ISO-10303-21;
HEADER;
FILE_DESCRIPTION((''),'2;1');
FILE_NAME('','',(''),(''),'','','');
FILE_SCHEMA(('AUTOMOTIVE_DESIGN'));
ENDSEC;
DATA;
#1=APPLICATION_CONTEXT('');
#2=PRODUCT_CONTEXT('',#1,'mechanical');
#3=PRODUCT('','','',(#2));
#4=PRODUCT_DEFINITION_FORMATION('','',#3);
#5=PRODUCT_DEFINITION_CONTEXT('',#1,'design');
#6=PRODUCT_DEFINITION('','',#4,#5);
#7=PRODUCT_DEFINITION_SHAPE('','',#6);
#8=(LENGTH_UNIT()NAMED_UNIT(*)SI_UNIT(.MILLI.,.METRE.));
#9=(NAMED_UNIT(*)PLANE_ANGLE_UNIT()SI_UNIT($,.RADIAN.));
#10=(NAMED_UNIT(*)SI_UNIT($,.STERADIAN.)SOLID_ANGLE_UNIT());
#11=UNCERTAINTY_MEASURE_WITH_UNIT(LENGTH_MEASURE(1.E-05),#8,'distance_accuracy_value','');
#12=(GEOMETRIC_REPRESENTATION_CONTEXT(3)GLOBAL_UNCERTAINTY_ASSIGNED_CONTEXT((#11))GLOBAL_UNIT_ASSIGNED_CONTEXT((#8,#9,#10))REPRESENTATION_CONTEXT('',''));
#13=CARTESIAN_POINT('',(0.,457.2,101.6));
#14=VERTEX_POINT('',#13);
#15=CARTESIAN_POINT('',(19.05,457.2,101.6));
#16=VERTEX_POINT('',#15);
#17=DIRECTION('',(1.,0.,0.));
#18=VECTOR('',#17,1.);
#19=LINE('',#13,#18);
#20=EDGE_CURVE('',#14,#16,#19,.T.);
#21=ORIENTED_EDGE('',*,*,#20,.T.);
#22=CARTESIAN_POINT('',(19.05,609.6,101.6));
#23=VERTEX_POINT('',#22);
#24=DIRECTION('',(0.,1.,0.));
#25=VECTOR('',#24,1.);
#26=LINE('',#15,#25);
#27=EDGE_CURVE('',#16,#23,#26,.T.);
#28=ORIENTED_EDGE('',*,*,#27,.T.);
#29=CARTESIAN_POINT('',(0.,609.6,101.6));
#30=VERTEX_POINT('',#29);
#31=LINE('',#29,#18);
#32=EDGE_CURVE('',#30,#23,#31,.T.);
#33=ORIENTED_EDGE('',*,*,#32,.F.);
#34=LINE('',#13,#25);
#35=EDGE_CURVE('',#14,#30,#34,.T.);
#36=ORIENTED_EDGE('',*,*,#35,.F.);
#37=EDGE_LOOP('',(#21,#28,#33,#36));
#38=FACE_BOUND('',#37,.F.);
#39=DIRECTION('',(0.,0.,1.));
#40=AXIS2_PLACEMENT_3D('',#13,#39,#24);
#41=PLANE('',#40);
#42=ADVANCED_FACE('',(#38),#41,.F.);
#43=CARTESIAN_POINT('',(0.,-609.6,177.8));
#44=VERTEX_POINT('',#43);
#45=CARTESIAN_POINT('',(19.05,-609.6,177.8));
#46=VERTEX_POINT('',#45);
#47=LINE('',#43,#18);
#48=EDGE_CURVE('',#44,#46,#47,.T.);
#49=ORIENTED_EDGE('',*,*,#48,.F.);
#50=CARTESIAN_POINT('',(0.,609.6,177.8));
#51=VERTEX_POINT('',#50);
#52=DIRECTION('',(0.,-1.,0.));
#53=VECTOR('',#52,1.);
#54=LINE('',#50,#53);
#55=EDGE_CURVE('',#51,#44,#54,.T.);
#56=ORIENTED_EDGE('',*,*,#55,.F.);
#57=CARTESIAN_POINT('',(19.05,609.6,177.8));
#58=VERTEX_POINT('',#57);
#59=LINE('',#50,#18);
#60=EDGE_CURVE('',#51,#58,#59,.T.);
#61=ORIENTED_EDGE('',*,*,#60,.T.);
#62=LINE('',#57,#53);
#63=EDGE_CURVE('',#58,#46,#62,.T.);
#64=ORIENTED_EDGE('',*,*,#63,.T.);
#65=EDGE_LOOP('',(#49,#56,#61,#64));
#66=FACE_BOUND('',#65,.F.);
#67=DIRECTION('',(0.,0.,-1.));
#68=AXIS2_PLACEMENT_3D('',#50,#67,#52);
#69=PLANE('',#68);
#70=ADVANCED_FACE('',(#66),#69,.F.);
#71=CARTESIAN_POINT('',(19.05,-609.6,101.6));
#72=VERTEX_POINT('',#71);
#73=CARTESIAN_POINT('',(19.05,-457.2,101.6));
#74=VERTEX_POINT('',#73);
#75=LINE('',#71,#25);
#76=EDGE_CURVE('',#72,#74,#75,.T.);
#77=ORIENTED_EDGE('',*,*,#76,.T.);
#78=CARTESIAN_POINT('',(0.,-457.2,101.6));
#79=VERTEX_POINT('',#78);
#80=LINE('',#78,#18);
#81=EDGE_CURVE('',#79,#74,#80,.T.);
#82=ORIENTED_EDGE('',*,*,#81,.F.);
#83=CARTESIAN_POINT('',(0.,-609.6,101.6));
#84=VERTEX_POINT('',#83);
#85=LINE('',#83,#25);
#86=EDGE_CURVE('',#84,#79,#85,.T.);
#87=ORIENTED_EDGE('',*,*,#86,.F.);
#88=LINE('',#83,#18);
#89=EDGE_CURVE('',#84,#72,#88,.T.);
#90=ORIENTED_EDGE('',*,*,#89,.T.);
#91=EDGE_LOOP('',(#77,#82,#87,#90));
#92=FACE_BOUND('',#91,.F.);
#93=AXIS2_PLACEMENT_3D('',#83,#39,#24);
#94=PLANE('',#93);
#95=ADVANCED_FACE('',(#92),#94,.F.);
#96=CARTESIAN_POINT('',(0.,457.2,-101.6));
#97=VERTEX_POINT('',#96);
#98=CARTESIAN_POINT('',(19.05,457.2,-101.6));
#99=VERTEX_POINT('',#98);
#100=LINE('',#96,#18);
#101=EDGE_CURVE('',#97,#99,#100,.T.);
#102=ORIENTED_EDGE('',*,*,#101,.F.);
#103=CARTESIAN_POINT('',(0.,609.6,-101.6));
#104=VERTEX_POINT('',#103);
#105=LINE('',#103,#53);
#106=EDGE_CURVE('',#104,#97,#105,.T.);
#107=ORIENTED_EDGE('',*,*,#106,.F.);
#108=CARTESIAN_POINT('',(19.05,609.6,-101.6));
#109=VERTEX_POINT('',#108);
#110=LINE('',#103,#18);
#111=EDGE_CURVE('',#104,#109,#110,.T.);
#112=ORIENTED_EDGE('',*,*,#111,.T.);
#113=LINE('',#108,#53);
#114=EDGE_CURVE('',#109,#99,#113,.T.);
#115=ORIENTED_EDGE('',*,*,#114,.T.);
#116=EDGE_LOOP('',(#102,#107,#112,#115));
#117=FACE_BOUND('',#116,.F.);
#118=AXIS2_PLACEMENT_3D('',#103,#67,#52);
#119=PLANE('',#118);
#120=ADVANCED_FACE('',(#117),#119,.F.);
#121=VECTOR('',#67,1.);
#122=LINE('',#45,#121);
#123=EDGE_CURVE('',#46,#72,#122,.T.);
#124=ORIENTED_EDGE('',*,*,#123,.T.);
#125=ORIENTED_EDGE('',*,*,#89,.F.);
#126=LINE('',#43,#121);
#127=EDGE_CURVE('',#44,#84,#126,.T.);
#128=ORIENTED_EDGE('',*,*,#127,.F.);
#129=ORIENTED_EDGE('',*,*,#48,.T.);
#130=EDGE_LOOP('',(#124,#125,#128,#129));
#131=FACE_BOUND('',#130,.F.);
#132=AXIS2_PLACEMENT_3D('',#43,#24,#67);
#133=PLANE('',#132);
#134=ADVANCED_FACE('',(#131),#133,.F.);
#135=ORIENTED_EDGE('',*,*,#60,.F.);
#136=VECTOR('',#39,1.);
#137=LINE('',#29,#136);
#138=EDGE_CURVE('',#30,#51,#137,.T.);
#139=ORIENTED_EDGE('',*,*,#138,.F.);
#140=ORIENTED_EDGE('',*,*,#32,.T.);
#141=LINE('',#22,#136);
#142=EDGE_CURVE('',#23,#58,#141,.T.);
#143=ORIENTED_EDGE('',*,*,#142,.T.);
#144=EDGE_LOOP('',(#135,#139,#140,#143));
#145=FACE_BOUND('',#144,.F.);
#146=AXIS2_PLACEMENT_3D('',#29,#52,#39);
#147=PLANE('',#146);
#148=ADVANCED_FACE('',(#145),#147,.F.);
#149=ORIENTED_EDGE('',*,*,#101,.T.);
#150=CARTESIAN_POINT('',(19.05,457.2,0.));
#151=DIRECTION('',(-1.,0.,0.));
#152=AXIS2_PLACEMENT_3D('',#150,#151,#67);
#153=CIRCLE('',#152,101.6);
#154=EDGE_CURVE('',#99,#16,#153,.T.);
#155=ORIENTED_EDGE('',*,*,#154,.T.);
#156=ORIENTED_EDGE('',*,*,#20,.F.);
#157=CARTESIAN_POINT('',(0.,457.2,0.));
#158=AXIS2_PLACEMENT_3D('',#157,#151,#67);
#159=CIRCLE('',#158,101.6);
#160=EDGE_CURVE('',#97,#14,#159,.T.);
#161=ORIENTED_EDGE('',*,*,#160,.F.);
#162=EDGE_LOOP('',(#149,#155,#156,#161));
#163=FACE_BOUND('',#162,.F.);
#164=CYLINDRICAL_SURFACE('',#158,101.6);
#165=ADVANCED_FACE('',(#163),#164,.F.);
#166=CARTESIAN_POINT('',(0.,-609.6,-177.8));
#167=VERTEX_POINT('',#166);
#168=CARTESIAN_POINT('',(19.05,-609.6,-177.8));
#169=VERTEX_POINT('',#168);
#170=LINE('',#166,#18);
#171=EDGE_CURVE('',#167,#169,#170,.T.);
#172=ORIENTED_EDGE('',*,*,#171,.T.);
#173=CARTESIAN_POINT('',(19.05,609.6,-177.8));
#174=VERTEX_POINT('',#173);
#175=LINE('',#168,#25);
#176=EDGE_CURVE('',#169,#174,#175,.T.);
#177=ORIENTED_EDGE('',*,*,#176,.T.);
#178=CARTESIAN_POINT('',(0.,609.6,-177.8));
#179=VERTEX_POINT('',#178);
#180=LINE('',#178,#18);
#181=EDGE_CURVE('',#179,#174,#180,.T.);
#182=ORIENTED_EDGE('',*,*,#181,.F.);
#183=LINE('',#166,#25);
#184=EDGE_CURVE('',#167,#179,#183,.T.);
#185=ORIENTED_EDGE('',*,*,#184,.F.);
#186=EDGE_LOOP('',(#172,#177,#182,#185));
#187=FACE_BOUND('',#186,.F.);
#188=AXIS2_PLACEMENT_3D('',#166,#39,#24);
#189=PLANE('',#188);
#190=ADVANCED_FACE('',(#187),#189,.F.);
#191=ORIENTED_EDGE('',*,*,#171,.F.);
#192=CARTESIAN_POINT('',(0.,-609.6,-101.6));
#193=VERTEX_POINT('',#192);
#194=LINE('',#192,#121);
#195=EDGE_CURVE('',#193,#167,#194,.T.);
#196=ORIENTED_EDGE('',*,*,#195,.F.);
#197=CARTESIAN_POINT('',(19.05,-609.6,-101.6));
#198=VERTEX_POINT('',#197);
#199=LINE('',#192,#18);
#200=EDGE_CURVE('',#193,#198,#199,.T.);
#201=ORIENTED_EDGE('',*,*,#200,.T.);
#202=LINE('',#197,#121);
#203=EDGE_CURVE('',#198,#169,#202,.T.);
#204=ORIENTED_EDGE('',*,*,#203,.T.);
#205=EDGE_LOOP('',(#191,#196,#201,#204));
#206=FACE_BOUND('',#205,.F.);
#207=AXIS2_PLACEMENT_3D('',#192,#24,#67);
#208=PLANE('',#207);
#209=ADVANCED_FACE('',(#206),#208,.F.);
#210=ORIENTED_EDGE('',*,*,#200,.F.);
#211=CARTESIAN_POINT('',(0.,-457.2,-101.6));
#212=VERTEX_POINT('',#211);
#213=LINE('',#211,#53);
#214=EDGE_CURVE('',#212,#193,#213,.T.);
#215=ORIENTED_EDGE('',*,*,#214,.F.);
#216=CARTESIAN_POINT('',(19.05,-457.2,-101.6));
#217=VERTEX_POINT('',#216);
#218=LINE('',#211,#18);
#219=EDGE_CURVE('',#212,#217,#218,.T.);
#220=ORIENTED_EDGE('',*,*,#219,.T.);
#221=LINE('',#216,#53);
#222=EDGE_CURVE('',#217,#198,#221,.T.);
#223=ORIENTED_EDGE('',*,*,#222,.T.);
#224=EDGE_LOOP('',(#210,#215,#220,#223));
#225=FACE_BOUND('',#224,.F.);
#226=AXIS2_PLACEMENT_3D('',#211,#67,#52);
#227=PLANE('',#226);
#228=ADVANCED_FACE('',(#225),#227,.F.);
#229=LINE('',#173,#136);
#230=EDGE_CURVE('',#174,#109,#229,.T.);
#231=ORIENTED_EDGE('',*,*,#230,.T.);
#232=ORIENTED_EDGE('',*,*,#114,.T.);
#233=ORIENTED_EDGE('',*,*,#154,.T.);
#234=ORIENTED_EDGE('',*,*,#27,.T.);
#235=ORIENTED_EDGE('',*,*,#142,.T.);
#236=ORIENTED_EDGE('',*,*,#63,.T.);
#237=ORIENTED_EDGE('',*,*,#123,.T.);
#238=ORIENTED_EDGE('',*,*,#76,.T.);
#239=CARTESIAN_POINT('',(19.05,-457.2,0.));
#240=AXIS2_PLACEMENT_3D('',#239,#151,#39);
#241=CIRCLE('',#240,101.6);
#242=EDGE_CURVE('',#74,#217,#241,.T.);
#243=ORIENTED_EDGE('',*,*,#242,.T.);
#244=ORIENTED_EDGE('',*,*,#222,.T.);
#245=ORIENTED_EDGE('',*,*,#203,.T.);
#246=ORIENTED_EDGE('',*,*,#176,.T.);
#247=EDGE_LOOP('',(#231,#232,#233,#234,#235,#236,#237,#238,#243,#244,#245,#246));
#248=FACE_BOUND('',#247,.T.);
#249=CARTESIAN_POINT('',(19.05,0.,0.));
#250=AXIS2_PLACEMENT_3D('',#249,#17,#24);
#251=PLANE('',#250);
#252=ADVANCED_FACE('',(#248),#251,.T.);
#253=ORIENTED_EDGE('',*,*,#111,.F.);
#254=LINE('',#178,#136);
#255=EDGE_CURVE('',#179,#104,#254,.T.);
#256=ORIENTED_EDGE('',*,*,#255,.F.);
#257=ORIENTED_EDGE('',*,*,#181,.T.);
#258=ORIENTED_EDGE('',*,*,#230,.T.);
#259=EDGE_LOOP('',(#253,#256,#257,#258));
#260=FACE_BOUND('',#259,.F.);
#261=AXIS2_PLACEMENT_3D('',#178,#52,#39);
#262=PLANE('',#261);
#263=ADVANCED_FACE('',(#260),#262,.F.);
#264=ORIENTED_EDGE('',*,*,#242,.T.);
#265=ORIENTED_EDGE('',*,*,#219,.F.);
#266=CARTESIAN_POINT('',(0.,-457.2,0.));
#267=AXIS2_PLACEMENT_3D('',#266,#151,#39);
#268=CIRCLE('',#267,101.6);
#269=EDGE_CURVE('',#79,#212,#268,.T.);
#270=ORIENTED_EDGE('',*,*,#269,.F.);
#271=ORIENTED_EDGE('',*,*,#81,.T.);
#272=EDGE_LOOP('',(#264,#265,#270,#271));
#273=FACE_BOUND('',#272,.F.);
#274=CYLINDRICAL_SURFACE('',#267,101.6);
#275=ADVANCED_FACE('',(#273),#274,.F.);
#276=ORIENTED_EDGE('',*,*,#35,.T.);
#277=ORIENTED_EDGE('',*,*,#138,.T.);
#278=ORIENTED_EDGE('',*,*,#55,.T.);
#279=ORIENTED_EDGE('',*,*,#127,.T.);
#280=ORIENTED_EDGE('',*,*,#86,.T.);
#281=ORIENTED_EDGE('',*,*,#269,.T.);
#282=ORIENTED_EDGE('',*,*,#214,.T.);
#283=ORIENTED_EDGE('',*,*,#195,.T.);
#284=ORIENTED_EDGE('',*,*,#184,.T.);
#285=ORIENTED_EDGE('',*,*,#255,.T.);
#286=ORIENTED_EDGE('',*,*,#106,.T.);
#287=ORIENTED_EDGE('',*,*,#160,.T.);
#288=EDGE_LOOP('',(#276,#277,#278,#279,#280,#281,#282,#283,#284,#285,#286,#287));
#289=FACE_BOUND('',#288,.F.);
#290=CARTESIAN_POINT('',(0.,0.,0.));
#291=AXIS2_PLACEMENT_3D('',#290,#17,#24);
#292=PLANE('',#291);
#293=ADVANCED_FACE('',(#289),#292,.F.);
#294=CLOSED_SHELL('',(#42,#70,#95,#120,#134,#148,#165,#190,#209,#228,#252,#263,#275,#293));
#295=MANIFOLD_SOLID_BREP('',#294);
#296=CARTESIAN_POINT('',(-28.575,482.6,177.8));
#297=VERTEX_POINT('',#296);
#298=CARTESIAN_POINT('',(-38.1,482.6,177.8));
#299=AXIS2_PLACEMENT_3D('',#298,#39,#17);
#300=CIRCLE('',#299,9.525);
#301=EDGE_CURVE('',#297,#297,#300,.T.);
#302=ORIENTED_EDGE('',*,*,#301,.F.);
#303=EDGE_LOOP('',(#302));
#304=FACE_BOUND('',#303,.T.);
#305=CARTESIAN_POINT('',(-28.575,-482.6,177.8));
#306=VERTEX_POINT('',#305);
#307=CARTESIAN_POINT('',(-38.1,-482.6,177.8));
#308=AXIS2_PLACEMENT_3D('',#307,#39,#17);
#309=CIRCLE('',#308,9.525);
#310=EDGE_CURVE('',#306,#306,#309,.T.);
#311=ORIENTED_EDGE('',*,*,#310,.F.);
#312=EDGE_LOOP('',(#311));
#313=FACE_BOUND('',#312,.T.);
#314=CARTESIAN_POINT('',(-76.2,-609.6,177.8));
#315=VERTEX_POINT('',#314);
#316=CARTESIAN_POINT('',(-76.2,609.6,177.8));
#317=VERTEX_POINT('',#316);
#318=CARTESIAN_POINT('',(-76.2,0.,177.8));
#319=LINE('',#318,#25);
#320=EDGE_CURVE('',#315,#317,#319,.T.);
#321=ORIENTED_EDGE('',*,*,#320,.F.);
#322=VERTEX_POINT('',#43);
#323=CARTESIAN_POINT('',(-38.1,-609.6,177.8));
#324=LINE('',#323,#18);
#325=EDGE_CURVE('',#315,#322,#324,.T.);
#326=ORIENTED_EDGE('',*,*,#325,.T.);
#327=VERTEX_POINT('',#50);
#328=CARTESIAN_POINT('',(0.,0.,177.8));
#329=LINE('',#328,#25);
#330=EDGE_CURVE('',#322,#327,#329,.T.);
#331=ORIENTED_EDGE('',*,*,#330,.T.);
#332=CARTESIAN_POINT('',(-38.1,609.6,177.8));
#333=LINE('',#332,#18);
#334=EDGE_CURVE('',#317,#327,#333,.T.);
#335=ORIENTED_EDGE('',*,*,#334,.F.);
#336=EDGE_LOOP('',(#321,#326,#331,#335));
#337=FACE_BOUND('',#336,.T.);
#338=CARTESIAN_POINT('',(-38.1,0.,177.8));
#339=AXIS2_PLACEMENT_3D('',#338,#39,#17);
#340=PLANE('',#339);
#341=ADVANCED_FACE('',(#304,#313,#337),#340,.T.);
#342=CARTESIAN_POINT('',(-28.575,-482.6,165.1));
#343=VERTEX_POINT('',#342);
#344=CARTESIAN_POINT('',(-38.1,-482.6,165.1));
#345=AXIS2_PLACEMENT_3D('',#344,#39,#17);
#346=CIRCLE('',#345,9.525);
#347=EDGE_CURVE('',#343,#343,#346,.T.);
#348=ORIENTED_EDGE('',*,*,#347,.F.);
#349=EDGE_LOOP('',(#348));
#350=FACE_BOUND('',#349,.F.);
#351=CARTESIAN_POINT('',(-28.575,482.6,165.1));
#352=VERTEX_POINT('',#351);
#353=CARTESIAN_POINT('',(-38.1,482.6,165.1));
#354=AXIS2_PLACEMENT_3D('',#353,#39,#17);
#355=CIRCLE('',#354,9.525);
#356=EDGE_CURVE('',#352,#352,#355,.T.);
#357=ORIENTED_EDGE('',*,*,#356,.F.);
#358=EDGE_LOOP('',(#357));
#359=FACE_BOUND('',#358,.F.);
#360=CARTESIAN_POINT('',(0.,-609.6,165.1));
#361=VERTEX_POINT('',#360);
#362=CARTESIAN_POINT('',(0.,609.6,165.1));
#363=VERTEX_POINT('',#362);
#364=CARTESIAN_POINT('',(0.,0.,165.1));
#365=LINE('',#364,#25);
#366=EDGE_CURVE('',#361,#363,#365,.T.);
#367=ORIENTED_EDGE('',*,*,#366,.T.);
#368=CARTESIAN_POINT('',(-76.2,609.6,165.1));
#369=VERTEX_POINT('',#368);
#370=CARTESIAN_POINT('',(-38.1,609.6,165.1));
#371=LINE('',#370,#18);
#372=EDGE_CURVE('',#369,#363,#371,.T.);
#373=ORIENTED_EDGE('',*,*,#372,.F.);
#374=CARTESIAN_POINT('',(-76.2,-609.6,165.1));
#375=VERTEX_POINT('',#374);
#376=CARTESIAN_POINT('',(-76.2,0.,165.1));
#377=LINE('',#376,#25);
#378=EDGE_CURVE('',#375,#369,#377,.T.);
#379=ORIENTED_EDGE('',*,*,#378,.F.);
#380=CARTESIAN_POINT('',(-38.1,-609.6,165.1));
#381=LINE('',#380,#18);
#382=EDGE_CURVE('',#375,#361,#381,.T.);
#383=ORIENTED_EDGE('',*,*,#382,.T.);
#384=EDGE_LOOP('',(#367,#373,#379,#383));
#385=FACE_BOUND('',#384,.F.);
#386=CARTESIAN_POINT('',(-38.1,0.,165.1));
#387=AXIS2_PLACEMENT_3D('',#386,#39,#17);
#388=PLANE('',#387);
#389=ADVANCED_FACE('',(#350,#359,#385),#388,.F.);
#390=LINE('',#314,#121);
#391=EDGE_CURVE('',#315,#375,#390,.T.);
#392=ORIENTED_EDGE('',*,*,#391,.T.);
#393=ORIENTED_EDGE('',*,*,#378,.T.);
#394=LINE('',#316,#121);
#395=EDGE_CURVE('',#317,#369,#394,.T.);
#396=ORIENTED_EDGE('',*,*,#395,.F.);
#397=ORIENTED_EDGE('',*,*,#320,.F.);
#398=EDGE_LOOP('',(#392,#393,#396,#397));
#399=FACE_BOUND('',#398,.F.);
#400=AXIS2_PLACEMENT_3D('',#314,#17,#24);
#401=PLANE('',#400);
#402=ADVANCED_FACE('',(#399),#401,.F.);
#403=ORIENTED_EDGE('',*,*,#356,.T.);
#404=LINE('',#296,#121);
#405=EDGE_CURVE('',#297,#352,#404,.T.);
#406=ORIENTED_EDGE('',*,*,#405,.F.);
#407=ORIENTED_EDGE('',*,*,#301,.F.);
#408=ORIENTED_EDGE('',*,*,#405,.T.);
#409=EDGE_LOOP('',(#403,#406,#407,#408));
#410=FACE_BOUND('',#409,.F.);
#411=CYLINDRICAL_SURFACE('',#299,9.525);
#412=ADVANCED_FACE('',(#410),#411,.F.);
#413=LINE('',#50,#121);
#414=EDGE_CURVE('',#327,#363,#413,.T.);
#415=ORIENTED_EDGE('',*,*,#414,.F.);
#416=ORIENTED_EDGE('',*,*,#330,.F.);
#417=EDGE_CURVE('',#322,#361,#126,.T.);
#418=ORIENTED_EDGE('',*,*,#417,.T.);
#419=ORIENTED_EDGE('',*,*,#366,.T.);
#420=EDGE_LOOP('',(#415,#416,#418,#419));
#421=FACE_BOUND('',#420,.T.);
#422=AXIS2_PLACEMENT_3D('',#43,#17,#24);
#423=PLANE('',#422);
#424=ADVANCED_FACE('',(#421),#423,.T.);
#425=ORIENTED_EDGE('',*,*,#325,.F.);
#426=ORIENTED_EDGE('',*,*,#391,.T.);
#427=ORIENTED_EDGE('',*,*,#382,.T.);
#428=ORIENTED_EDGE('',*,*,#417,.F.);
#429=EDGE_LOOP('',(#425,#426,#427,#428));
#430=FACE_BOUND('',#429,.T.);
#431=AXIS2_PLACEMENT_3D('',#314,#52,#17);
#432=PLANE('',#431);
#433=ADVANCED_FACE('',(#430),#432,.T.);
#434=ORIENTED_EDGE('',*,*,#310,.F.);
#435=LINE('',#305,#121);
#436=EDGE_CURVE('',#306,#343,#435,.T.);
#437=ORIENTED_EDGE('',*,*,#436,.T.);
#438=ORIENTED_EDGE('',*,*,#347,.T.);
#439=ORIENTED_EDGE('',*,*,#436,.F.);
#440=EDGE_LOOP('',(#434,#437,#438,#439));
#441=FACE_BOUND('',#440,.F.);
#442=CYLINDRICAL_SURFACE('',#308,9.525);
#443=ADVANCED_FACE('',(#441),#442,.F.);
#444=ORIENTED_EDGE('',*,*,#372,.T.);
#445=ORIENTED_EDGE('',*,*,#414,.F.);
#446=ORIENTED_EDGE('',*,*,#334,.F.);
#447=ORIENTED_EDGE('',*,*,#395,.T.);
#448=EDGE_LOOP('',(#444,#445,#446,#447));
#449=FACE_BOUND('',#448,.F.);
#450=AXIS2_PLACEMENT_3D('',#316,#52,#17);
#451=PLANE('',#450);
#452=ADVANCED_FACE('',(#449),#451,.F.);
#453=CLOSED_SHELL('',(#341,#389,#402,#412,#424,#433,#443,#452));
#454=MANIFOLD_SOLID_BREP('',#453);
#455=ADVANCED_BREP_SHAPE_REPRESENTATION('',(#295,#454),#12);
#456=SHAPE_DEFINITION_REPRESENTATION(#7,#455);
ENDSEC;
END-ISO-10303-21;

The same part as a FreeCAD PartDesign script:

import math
import FreeCAD as App
import Part
import Sketcher
Q = App.Units.Quantity

doc = App.newDocument("Part")
body = doc.addObject("PartDesign::Body", "Body")

sketch1 = body.newObject("Sketcher::SketchObject", "Sketch")
sketch1.AttachmentSupport = (doc.getObject("YZ_Plane"), [""])
sketch1.MapMode = "FlatFace"
sketch1.addGeometry([
    Part.LineSegment(App.Vector(609.6, 177.8, 0), App.Vector(-609.6, 177.8, 0)),
    Part.LineSegment(App.Vector(-609.6, 177.8, 0), App.Vector(-609.6, 101.6, 0)),
    Part.LineSegment(App.Vector(-609.6, 101.6, 0), App.Vector(-457.2, 101.6, 0)),
    Part.ArcOfCircle(Part.Circle(App.Vector(-457.2, 0, 0), App.Vector(0, 0, 1), 101.6), math.radians(-90), math.radians(90)),
    Part.LineSegment(App.Vector(-457.2, -101.6, 0), App.Vector(-609.6, -101.6, 0)),
    Part.LineSegment(App.Vector(-609.6, -101.6, 0), App.Vector(-609.6, -177.8, 0)),
    Part.LineSegment(App.Vector(-609.6, -177.8, 0), App.Vector(609.6, -177.8, 0)),
    Part.LineSegment(App.Vector(609.6, -177.8, 0), App.Vector(609.6, -101.6, 0)),
    Part.LineSegment(App.Vector(609.6, -101.6, 0), App.Vector(457.2, -101.6, 0)),
    Part.ArcOfCircle(Part.Circle(App.Vector(457.2, 0, 0), App.Vector(0, 0, 1), 101.6), math.radians(90), math.radians(270)),
    Part.LineSegment(App.Vector(457.2, 101.6, 0), App.Vector(609.6, 101.6, 0)),
    Part.LineSegment(App.Vector(609.6, 101.6, 0), App.Vector(609.6, 177.8, 0)),
], False)
sketch1.addConstraint([
    Sketcher.Constraint("Coincident", 0, 2, 1, 1),
    Sketcher.Constraint("Coincident", 1, 2, 2, 1),
    Sketcher.Constraint("Tangent", 2, 2, 3, 2),
    Sketcher.Constraint("Tangent", 3, 1, 4, 1),
    Sketcher.Constraint("Coincident", 4, 2, 5, 1),
    Sketcher.Constraint("Coincident", 5, 2, 6, 1),
    Sketcher.Constraint("Coincident", 6, 2, 7, 1),
    Sketcher.Constraint("Coincident", 7, 2, 8, 1),
    Sketcher.Constraint("Tangent", 8, 2, 9, 2),
    Sketcher.Constraint("Tangent", 9, 1, 10, 1),
    Sketcher.Constraint("Coincident", 10, 2, 11, 1),
    Sketcher.Constraint("Coincident", 11, 2, 0, 1),
    Sketcher.Constraint("Horizontal", 0),
    Sketcher.Constraint("Vertical", 1),
    Sketcher.Constraint("Horizontal", 2),
    Sketcher.Constraint("Horizontal", 4),
    Sketcher.Constraint("Vertical", 5),
    Sketcher.Constraint("Horizontal", 6),
    Sketcher.Constraint("Vertical", 7),
    Sketcher.Constraint("Horizontal", 8),
    Sketcher.Constraint("Horizontal", 10),
    Sketcher.Constraint("Vertical", 11),
    Sketcher.Constraint("Equal", 3, 9),
    Sketcher.Constraint("Symmetric", 3, 3, 9, 3, -1, 1),
    Sketcher.Constraint("Symmetric", 0, 2, 6, 2, -1, 1),
    Sketcher.Constraint("Symmetric", 4, 2, 7, 2, -2),
    Sketcher.Constraint("Vertical", 7, 2, 10, 2),
    Sketcher.Constraint("Radius", 3, Q("4 in")),
    Sketcher.Constraint("DistanceX", 0, 2, 0, 1, Q("48 in")),
    Sketcher.Constraint("DistanceX", 2, 1, 2, 2, Q("6 in")),
    Sketcher.Constraint("DistanceY", 1, 2, 1, 1, Q("3 in")),
])
pad1 = body.newObject("PartDesign::Pad", "Pad")
pad1.Profile = sketch1
pad1.Length = Q("0.75 in")
body2 = doc.addObject("PartDesign::Body", "Body001")

sketch2 = body2.newObject("Sketcher::SketchObject", "Sketch001")
sketch2.AttachmentSupport = (doc.getObject("XY_Plane001"), [""])
sketch2.MapMode = "FlatFace"
sketch2.AttachmentOffset = App.Placement(App.Vector(0, 0, 7 * 25.4), App.Rotation())
sketch2.addGeometry([
    Part.LineSegment(App.Vector(-76.2, 609.6, 0), App.Vector(-76.2, -609.6, 0)),
    Part.LineSegment(App.Vector(-76.2, -609.6, 0), App.Vector(0, -609.6, 0)),
    Part.LineSegment(App.Vector(0, -609.6, 0), App.Vector(0, 609.6, 0)),
    Part.LineSegment(App.Vector(0, 609.6, 0), App.Vector(-76.2, 609.6, 0)),
    Part.Circle(App.Vector(-38.1, -482.6, 0), App.Vector(0, 0, 1), 9.525),
    Part.Circle(App.Vector(-38.1, 482.6, 0), App.Vector(0, 0, 1), 9.525),
], False)
sketch2.addConstraint([
    Sketcher.Constraint("Coincident", 0, 2, 1, 1),
    Sketcher.Constraint("Coincident", 1, 2, 2, 1),
    Sketcher.Constraint("Coincident", 2, 2, 3, 1),
    Sketcher.Constraint("Coincident", 3, 2, 0, 1),
    Sketcher.Constraint("Vertical", 0),
    Sketcher.Constraint("Horizontal", 1),
    Sketcher.Constraint("Vertical", 2),
    Sketcher.Constraint("Horizontal", 3),
    Sketcher.Constraint("Equal", 4, 5),
    Sketcher.Constraint("Symmetric", 1, 2, 2, 2, -1, 1),
    Sketcher.Constraint("Symmetric", 4, 3, 5, 3, -1),
    Sketcher.Constraint("Diameter", 4, Q("0.75 in")),
    Sketcher.Constraint("DistanceX", 1, 1, 1, 2, Q("3 in")),
    Sketcher.Constraint("DistanceY", 0, 2, 0, 1, Q("48 in")),
    Sketcher.Constraint("DistanceY", 4, 3, -1, 1, Q("19 in")),
    Sketcher.Constraint("DistanceX", 4, 3, -1, 1, Q("1.5 in")),
])
pad2 = body2.newObject("PartDesign::Pad", "Pad001")
pad2.Profile = sketch2
pad2.Length = Q("0.5 in")
pad2.Reversed = True

doc.recompute()
